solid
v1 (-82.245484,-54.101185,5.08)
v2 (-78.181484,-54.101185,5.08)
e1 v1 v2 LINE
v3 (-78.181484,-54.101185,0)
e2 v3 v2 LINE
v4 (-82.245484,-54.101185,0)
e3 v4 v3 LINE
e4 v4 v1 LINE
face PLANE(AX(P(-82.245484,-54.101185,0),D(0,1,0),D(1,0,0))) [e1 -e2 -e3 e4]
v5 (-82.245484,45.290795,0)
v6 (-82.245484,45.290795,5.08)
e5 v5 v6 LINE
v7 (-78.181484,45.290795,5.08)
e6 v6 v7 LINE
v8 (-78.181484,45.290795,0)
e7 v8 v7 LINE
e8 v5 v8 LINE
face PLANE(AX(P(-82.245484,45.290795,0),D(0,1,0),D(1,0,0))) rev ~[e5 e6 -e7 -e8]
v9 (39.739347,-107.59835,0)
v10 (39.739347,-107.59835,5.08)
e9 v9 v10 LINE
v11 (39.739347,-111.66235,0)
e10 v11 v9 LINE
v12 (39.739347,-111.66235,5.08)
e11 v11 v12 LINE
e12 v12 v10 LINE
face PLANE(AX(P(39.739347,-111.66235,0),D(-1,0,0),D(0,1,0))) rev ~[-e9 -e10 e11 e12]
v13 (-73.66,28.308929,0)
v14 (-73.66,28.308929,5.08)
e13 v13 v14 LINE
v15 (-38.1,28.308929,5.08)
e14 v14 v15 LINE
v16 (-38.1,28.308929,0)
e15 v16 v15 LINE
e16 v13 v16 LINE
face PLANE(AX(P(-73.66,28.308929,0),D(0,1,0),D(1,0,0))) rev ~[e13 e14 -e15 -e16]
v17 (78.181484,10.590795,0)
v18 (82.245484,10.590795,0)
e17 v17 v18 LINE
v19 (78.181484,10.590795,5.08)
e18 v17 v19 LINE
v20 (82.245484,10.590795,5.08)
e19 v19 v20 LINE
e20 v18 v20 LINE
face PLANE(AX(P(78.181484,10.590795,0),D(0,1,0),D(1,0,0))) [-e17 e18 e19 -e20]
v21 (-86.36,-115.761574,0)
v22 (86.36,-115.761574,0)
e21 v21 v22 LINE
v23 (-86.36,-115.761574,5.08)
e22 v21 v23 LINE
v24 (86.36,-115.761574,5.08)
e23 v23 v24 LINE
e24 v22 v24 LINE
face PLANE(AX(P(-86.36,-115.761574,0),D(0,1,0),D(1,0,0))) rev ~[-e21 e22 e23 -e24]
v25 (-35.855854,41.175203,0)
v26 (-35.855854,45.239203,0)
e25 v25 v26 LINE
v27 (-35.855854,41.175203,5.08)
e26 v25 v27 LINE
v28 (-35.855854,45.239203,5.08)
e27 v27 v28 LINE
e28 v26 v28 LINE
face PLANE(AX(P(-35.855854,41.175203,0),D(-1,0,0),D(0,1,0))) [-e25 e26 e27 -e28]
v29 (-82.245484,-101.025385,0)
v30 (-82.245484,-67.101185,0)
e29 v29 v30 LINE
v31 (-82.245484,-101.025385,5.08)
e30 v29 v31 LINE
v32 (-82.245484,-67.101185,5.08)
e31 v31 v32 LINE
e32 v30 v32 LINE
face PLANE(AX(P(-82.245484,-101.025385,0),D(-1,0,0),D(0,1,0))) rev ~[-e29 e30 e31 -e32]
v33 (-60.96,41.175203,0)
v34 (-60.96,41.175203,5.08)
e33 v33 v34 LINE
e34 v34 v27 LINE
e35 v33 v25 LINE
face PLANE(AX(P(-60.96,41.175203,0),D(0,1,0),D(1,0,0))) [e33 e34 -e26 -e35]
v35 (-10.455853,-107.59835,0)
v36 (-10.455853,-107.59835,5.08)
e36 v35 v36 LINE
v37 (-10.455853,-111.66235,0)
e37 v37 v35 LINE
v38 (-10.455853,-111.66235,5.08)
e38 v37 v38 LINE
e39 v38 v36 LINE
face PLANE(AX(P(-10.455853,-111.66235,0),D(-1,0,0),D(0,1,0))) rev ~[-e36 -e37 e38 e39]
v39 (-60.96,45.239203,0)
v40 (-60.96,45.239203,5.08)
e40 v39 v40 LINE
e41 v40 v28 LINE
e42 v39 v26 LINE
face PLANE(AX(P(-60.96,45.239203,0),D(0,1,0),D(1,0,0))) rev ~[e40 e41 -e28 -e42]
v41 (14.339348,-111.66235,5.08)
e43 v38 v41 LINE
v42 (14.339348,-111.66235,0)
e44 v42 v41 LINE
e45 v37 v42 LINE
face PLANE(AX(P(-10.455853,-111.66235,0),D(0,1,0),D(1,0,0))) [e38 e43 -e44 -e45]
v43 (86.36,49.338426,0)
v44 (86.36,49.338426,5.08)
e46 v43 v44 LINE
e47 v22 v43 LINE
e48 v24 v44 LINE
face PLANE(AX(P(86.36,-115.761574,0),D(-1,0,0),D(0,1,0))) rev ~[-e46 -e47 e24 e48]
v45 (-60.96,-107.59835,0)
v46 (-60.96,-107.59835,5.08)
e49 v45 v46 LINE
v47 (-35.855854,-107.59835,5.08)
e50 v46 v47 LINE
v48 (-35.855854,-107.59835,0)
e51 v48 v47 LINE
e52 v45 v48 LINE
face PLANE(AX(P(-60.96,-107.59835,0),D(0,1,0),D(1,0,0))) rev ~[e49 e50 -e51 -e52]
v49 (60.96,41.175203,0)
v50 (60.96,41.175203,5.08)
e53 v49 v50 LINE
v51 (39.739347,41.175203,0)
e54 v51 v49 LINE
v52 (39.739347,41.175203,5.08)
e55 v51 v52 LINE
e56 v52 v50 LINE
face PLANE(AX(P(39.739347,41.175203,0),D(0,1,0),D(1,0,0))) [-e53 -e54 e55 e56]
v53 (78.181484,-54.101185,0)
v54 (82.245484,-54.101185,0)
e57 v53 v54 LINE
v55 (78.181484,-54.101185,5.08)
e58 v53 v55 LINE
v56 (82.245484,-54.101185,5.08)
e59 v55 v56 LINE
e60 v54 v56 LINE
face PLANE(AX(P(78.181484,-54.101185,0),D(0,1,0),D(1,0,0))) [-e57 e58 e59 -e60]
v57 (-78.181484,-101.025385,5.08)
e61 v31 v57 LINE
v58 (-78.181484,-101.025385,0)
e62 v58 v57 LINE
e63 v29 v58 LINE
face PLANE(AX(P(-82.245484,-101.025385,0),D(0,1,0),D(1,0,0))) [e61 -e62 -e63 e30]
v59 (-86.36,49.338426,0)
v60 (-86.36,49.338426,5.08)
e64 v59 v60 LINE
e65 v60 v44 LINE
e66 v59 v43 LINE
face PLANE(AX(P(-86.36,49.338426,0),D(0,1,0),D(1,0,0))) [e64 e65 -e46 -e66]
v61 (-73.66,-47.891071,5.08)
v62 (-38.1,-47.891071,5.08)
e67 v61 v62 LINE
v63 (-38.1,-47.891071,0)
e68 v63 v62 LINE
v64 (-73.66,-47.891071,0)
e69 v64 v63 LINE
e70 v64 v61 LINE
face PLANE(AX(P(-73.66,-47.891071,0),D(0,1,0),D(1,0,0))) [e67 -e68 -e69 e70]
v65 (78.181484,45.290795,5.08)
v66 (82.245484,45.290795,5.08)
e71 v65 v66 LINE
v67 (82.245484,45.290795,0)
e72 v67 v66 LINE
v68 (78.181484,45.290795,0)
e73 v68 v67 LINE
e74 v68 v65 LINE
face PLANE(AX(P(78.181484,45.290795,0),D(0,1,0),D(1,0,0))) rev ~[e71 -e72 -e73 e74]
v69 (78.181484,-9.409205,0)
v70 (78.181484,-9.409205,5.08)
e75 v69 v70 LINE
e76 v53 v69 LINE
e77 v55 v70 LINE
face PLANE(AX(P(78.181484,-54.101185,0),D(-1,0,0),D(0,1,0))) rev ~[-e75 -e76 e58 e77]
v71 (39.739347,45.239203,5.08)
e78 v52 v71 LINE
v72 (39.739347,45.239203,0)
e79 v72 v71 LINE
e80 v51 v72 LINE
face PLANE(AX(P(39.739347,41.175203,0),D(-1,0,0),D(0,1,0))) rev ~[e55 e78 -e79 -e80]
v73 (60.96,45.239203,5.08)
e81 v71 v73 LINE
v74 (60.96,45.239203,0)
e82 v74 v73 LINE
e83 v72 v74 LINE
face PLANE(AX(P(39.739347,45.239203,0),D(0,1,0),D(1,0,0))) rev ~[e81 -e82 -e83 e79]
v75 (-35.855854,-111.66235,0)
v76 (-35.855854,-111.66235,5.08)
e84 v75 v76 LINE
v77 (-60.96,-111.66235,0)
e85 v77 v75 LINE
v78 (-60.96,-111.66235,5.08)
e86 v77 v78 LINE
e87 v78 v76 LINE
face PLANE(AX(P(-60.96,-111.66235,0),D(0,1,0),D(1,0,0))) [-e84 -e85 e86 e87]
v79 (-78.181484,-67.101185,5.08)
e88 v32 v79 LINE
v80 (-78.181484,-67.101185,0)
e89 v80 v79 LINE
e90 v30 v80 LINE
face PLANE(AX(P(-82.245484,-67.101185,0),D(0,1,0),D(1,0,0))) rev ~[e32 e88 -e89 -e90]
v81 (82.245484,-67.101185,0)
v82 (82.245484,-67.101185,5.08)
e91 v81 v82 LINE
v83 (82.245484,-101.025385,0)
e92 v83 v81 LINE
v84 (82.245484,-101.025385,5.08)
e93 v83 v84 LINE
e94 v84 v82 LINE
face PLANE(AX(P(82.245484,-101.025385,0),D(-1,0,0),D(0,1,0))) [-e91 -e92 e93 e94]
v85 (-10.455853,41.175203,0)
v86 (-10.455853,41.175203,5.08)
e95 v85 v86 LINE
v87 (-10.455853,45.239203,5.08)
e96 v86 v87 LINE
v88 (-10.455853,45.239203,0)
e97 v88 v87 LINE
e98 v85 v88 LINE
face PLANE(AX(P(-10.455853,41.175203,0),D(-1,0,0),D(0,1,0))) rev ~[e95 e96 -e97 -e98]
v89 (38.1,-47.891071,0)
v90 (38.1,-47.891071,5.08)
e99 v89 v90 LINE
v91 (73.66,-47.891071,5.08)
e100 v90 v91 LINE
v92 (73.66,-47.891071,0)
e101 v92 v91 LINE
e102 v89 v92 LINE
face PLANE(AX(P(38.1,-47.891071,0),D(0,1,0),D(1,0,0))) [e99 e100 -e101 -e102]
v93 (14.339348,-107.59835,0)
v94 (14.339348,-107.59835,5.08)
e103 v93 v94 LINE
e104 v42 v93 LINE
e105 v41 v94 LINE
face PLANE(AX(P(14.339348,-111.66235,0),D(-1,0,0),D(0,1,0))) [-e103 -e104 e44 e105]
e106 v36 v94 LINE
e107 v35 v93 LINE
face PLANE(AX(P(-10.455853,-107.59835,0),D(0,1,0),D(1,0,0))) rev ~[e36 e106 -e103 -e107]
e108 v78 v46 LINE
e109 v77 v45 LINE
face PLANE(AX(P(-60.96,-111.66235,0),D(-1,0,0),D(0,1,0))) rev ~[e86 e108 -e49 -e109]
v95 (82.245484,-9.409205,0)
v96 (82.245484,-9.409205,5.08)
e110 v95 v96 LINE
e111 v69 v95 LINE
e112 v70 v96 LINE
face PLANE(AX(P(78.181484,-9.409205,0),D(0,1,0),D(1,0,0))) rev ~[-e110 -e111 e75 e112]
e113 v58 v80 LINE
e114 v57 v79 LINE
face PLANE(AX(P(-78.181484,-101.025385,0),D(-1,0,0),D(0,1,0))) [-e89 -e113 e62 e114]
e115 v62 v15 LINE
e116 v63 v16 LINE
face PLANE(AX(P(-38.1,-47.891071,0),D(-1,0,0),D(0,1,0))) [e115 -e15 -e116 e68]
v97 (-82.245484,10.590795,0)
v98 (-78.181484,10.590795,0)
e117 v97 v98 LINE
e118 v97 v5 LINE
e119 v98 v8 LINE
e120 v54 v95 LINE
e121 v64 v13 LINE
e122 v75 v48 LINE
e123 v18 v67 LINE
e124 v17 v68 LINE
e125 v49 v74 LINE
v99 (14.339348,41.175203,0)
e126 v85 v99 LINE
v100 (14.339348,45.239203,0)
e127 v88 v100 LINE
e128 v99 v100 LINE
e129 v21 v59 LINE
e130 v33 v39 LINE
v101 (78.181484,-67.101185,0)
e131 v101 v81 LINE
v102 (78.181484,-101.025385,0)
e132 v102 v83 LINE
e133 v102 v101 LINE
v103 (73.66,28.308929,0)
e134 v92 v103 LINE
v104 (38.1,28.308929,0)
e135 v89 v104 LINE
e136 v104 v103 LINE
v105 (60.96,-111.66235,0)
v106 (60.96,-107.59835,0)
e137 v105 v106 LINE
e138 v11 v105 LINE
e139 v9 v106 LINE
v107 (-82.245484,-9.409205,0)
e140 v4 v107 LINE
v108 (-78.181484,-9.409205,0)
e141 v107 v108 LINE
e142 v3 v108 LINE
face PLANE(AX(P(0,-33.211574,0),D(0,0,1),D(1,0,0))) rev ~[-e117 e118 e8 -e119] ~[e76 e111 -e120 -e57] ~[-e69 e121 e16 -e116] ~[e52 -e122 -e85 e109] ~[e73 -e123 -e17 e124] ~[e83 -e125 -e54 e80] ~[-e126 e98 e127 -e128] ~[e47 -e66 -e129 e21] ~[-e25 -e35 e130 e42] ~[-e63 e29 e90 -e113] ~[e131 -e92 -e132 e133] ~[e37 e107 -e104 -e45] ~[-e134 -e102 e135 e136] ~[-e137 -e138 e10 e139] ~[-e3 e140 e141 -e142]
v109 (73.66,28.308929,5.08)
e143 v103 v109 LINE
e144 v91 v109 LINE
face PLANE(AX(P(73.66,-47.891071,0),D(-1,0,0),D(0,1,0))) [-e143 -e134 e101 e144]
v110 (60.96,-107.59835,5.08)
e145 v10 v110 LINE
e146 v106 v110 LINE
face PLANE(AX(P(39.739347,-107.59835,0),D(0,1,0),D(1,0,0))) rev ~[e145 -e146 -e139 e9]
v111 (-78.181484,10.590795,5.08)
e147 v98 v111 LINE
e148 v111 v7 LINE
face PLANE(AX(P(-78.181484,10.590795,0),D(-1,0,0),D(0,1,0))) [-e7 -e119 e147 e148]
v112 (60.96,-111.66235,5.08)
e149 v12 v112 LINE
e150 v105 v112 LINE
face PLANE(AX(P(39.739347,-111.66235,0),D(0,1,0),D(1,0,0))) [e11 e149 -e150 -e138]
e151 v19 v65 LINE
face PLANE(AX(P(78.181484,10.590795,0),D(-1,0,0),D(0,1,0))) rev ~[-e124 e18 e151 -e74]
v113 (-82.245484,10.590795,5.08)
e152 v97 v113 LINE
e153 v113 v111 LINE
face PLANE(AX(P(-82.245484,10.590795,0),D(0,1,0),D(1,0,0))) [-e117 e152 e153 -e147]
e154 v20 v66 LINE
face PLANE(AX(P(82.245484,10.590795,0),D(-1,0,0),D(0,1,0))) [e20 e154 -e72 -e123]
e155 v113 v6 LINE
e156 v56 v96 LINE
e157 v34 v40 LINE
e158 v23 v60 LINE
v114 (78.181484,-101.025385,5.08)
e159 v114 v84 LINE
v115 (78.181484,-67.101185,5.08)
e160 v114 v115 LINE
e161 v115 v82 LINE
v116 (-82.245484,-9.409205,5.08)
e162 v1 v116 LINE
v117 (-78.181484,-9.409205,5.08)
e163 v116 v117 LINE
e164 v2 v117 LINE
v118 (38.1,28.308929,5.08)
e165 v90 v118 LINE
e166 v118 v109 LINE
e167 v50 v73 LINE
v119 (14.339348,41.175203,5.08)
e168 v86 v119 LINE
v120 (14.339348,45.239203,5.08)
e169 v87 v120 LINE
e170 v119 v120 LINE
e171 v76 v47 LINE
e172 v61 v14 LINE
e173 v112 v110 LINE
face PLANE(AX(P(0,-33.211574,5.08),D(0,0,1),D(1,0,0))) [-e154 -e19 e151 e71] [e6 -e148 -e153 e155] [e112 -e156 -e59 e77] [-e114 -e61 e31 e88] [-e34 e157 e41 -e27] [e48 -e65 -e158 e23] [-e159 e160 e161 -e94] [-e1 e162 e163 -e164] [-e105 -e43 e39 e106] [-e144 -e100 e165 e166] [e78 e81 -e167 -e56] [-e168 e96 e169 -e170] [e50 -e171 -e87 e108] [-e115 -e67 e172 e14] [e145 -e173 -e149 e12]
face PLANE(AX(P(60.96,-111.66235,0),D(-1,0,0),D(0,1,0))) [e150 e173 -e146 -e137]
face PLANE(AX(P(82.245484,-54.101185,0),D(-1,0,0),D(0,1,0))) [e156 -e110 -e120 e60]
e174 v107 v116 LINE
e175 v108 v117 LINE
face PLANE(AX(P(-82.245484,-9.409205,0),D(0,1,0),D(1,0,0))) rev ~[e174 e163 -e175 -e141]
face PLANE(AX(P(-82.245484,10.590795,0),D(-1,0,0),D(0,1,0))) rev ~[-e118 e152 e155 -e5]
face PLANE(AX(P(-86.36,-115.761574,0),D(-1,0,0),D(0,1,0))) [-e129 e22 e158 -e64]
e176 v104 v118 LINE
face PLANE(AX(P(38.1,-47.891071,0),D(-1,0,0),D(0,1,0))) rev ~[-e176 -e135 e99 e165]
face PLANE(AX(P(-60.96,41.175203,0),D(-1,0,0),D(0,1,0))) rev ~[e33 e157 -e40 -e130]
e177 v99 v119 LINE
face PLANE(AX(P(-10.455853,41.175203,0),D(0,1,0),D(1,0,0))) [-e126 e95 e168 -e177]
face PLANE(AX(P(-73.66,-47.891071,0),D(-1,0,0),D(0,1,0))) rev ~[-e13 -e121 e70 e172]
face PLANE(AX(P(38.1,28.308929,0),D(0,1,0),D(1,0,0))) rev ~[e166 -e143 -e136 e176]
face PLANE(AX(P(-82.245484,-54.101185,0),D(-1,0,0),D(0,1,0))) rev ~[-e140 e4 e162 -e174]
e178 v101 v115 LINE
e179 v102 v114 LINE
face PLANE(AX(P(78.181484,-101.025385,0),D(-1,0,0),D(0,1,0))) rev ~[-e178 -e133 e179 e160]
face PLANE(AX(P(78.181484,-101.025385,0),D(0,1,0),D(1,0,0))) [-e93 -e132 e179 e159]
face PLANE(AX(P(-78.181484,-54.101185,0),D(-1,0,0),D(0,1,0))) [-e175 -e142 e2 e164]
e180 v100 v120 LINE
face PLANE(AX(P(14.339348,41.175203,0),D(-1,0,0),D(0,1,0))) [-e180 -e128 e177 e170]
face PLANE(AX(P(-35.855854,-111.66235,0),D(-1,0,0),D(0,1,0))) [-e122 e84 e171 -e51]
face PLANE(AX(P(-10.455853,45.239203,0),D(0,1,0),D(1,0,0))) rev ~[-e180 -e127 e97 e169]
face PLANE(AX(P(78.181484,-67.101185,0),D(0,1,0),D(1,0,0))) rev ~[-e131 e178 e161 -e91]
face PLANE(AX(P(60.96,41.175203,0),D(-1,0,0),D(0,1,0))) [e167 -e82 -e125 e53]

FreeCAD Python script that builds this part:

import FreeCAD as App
import Part
import Sketcher
Q = App.Units.Quantity


def add_polygon(sketch, points):
    """Adds a closed chain of lines whose ends are joined by coincident constraints."""
    first, n = sketch.GeometryCount, len(points)
    for a, b in zip(points, points[1:] + points[:1]):
        sketch.addGeometry(Part.LineSegment(App.Vector(*a, 0), App.Vector(*b, 0)), False)
    for i in range(n):
        sketch.addConstraint(Sketcher.Constraint("Coincident", first + i, 2, first + (i + 1) % n, 1))

doc = App.newDocument("Part")
body = doc.addObject("PartDesign::Body", "Body")

sketch1 = body.newObject("Sketcher::SketchObject", "Sketch")
sketch1.AttachmentSupport = (doc.getObject("XY_Plane"), [""])
sketch1.MapMode = "FlatFace"
add_polygon(sketch1, [(-86.36, 49.338426), (-86.36, -115.761574), (86.36, -115.761574), (86.36, 49.338426)])
add_polygon(sketch1, [(-35.855854, -111.66235), (-60.96, -111.66235), (-60.96, -107.59835), (-35.855854, -107.59835)])
add_polygon(sketch1, [(-78.181484, -101.025385), (-82.245484, -101.025385), (-82.245484, -67.101185), (-78.181484, -67.101185)])
add_polygon(sketch1, [(14.339348, -111.66235), (-10.455853, -111.66235), (-10.455853, -107.59835), (14.339348, -107.59835)])
add_polygon(sketch1, [(60.96, -111.66235), (39.739347, -111.66235), (39.739347, -107.59835), (60.96, -107.59835)])
add_polygon(sketch1, [(82.245484, -101.025385), (78.181484, -101.025385), (78.181484, -67.101185), (82.245484, -67.101185)])
add_polygon(sketch1, [(-78.181484, -54.101185), (-82.245484, -54.101185), (-82.245484, -9.409205), (-78.181484, -9.409205)])
add_polygon(sketch1, [(-38.1, -47.891071), (-73.66, -47.891071), (-73.66, 28.308929), (-38.1, 28.308929)])
add_polygon(sketch1, [(-78.181484, 10.590795), (-82.245484, 10.590795), (-82.245484, 45.290795), (-78.181484, 45.290795)])
add_polygon(sketch1, [(-35.855854, 41.175203), (-60.96, 41.175203), (-60.96, 45.239203), (-35.855854, 45.239203)])
add_polygon(sketch1, [(82.245484, -54.101185), (78.181484, -54.101185), (78.181484, -9.409205), (82.245484, -9.409205)])
add_polygon(sketch1, [(73.66, -47.891071), (38.1, -47.891071), (38.1, 28.308929), (73.66, 28.308929)])
add_polygon(sketch1, [(14.339348, 41.175203), (-10.455853, 41.175203), (-10.455853, 45.239203), (14.339348, 45.239203)])
add_polygon(sketch1, [(60.96, 41.175203), (39.739347, 41.175203), (39.739347, 45.239203), (60.96, 45.239203)])
add_polygon(sketch1, [(82.245484, 10.590795), (78.181484, 10.590795), (78.181484, 45.290795), (82.245484, 45.290795)])
sketch1.addConstraint(Sketcher.Constraint("Vertical", 0))
sketch1.addConstraint(Sketcher.Constraint("Horizontal", 1))
sketch1.addConstraint(Sketcher.Constraint("Vertical", 2))
sketch1.addConstraint(Sketcher.Constraint("Horizontal", 3))
sketch1.addConstraint(Sketcher.Constraint("Horizontal", 4))
sketch1.addConstraint(Sketcher.Constraint("Vertical", 5))
sketch1.addConstraint(Sketcher.Constraint("Horizontal", 6))
sketch1.addConstraint(Sketcher.Constraint("Vertical", 7))
sketch1.addConstraint(Sketcher.Constraint("Horizontal", 8))
sketch1.addConstraint(Sketcher.Constraint("Vertical", 9))
sketch1.addConstraint(Sketcher.Constraint("Horizontal", 10))
sketch1.addConstraint(Sketcher.Constraint("Vertical", 11))
sketch1.addConstraint(Sketcher.Constraint("Horizontal", 12))
sketch1.addConstraint(Sketcher.Constraint("Vertical", 13))
sketch1.addConstraint(Sketcher.Constraint("Horizontal", 14))
sketch1.addConstraint(Sketcher.Constraint("Vertical", 15))
sketch1.addConstraint(Sketcher.Constraint("Horizontal", 16))
sketch1.addConstraint(Sketcher.Constraint("Vertical", 17))
sketch1.addConstraint(Sketcher.Constraint("Horizontal", 18))
sketch1.addConstraint(Sketcher.Constraint("Vertical", 19))
sketch1.addConstraint(Sketcher.Constraint("Horizontal", 20))
sketch1.addConstraint(Sketcher.Constraint("Vertical", 21))
sketch1.addConstraint(Sketcher.Constraint("Horizontal", 22))
sketch1.addConstraint(Sketcher.Constraint("Vertical", 23))
sketch1.addConstraint(Sketcher.Constraint("Horizontal", 24))
sketch1.addConstraint(Sketcher.Constraint("Vertical", 25))
sketch1.addConstraint(Sketcher.Constraint("Horizontal", 26))
sketch1.addConstraint(Sketcher.Constraint("Vertical", 27))
sketch1.addConstraint(Sketcher.Constraint("Horizontal", 28))
sketch1.addConstraint(Sketcher.Constraint("Vertical", 29))
sketch1.addConstraint(Sketcher.Constraint("Horizontal", 30))
sketch1.addConstraint(Sketcher.Constraint("Vertical", 31))
sketch1.addConstraint(Sketcher.Constraint("Horizontal", 32))
sketch1.addConstraint(Sketcher.Constraint("Vertical", 33))
sketch1.addConstraint(Sketcher.Constraint("Horizontal", 34))
sketch1.addConstraint(Sketcher.Constraint("Vertical", 35))
sketch1.addConstraint(Sketcher.Constraint("Horizontal", 36))
sketch1.addConstraint(Sketcher.Constraint("Vertical", 37))
sketch1.addConstraint(Sketcher.Constraint("Horizontal", 38))
sketch1.addConstraint(Sketcher.Constraint("Vertical", 39))
sketch1.addConstraint(Sketcher.Constraint("Horizontal", 40))
sketch1.addConstraint(Sketcher.Constraint("Vertical", 41))
sketch1.addConstraint(Sketcher.Constraint("Horizontal", 42))
sketch1.addConstraint(Sketcher.Constraint("Vertical", 43))
sketch1.addConstraint(Sketcher.Constraint("Horizontal", 44))
sketch1.addConstraint(Sketcher.Constraint("Vertical", 45))
sketch1.addConstraint(Sketcher.Constraint("Horizontal", 46))
sketch1.addConstraint(Sketcher.Constraint("Vertical", 47))
sketch1.addConstraint(Sketcher.Constraint("Horizontal", 48))
sketch1.addConstraint(Sketcher.Constraint("Vertical", 49))
sketch1.addConstraint(Sketcher.Constraint("Horizontal", 50))
sketch1.addConstraint(Sketcher.Constraint("Vertical", 51))
sketch1.addConstraint(Sketcher.Constraint("Horizontal", 52))
sketch1.addConstraint(Sketcher.Constraint("Vertical", 53))
sketch1.addConstraint(Sketcher.Constraint("Horizontal", 54))
sketch1.addConstraint(Sketcher.Constraint("Vertical", 55))
sketch1.addConstraint(Sketcher.Constraint("Horizontal", 56))
sketch1.addConstraint(Sketcher.Constraint("Vertical", 57))
sketch1.addConstraint(Sketcher.Constraint("Horizontal", 58))
sketch1.addConstraint(Sketcher.Constraint("Vertical", 59))
sketch1.addConstraint(Sketcher.Constraint("Symmetric", 5, 2, 18, 2, -2))
sketch1.addConstraint(Sketcher.Constraint("Symmetric", 11, 2, 20, 2, -2))
sketch1.addConstraint(Sketcher.Constraint("Symmetric", 9, 2, 22, 2, -2))
sketch1.addConstraint(Sketcher.Constraint("Symmetric", 27, 2, 40, 2, -2))
sketch1.addConstraint(Sketcher.Constraint("Symmetric", 25, 2, 42, 2, -2))
sketch1.addConstraint(Sketcher.Constraint("Symmetric", 31, 2, 44, 2, -2))
sketch1.addConstraint(Sketcher.Constraint("Symmetric", 29, 2, 46, 2, -2))
sketch1.addConstraint(Sketcher.Constraint("Symmetric", 37, 2, 54, 2, -2))
sketch1.addConstraint(Sketcher.Constraint("Symmetric", 35, 2, 56, 2, -2))
sketch1.addConstraint(Sketcher.Constraint("Symmetric", 33, 2, 58, 2, -2))
sketch1.addConstraint(Sketcher.Constraint("Horizontal", 7, 2, 12, 2))
sketch1.addConstraint(Sketcher.Constraint("Horizontal", 6, 2, 13, 2))
sketch1.addConstraint(Sketcher.Constraint("Horizontal", 15, 2, 16, 2))
sketch1.addConstraint(Sketcher.Constraint("Horizontal", 39, 2, 48, 2))
sketch1.addConstraint(Sketcher.Constraint("Horizontal", 38, 2, 49, 2))
sketch1.addConstraint(Sketcher.Constraint("Horizontal", 51, 2, 52, 2))
sketch1.addConstraint(Sketcher.Constraint("Vertical", 9, 2, 24, 2))
sketch1.addConstraint(Sketcher.Constraint("Vertical", 11, 2, 26, 2))
sketch1.addConstraint(Sketcher.Constraint("Vertical", 25, 2, 32, 2))
sketch1.addConstraint(Sketcher.Constraint("Vertical", 27, 2, 34, 2))
sketch1.addConstraint(Sketcher.Constraint("Vertical", 5, 2, 36, 2))
sketch1.addConstraint(Sketcher.Constraint("Vertical", 7, 2, 38, 2))
sketch1.addConstraint(Sketcher.Constraint("Vertical", 13, 2, 48, 2))
sketch1.addConstraint(Sketcher.Constraint("Vertical", 15, 2, 50, 2))
sketch1.addConstraint(Sketcher.Constraint("Vertical", 17, 2, 52, 2))
sketch1.addConstraint(Sketcher.Constraint("Equal", 58, 5))
sketch1.addConstraint(Sketcher.Constraint("Equal", 19, 37))
sketch1.addConstraint(Sketcher.Constraint("DistanceY", 29, 1, 29, 2, Q("3 in")))
sketch1.addConstraint(Sketcher.Constraint("DistanceX", 1, 1, 1, 2, Q("6.8 in")))
sketch1.addConstraint(Sketcher.Constraint("DistanceX", 28, 2, 28, 1, Q("1.4 in")))
sketch1.addConstraint(Sketcher.Constraint("DistanceY", 0, 2, 0, 1, Q("6.5 in")))
sketch1.addConstraint(Sketcher.Constraint("DistanceX", 0, 2, 4, 2, Q("1 in")))
sketch1.addConstraint(Sketcher.Constraint("DistanceX", 7, 2, 12, 2, Q("1 in")))
sketch1.addConstraint(Sketcher.Constraint("DistanceX", 15, 2, 16, 2, Q("1 in")))
sketch1.addConstraint(Sketcher.Constraint("DistanceX", 18, 2, 1, 2, Q("1 in")))
sketch1.addConstraint(Sketcher.Constraint("DistanceX", 8, 2, 8, 1, Q("0.16 in")))
sketch1.addConstraint(Sketcher.Constraint("DistanceX", 28, 2, -1, 1, Q("2.9 in")))
sketch1.addConstraint(Sketcher.Constraint("DistanceX", 12, 2, 12, 1, 24.795201))
sketch1.addConstraint(Sketcher.Constraint("DistanceY", 9, 1, 9, 2, 33.9242))
sketch1.addConstraint(Sketcher.Constraint("DistanceY", 33, 1, 33, 2, 34.7))
sketch1.addConstraint(Sketcher.Constraint("DistanceY", 25, 1, 25, 2, 44.69198))
sketch1.addConstraint(Sketcher.Constraint("DistanceY", 9, 2, 24, 2, 13.0))
sketch1.addConstraint(Sketcher.Constraint("DistanceY", 25, 2, 32, 2, 20.0))
sketch1.addConstraint(Sketcher.Constraint("DistanceX", 4, 2, 4, 1, 25.104146))
sketch1.addConstraint(Sketcher.Constraint("DistanceY", 4, 2, -1, 1, 111.66235))
sketch1.addConstraint(Sketcher.Constraint("DistanceY", 28, 2, -1, 1, 47.891071))
sketch1.addConstraint(Sketcher.Constraint("DistanceY", 0, 2, 8, 2, 14.736189))
sketch1.addConstraint(Sketcher.Constraint("DistanceX", 8, 2, 6, 2, 46.38963))
sketch1.addConstraint(Sketcher.Constraint("DistanceY", 36, 2, 34, 2, 4.115592))
sketch1.addConstraint(Sketcher.Constraint("DistanceY", 0, 2, -1, 1, 115.761574))
pad1 = body.newObject("PartDesign::Pad", "Pad")
pad1.Profile = sketch1
pad1.Length = Q("0.2 in")

doc.recompute()
